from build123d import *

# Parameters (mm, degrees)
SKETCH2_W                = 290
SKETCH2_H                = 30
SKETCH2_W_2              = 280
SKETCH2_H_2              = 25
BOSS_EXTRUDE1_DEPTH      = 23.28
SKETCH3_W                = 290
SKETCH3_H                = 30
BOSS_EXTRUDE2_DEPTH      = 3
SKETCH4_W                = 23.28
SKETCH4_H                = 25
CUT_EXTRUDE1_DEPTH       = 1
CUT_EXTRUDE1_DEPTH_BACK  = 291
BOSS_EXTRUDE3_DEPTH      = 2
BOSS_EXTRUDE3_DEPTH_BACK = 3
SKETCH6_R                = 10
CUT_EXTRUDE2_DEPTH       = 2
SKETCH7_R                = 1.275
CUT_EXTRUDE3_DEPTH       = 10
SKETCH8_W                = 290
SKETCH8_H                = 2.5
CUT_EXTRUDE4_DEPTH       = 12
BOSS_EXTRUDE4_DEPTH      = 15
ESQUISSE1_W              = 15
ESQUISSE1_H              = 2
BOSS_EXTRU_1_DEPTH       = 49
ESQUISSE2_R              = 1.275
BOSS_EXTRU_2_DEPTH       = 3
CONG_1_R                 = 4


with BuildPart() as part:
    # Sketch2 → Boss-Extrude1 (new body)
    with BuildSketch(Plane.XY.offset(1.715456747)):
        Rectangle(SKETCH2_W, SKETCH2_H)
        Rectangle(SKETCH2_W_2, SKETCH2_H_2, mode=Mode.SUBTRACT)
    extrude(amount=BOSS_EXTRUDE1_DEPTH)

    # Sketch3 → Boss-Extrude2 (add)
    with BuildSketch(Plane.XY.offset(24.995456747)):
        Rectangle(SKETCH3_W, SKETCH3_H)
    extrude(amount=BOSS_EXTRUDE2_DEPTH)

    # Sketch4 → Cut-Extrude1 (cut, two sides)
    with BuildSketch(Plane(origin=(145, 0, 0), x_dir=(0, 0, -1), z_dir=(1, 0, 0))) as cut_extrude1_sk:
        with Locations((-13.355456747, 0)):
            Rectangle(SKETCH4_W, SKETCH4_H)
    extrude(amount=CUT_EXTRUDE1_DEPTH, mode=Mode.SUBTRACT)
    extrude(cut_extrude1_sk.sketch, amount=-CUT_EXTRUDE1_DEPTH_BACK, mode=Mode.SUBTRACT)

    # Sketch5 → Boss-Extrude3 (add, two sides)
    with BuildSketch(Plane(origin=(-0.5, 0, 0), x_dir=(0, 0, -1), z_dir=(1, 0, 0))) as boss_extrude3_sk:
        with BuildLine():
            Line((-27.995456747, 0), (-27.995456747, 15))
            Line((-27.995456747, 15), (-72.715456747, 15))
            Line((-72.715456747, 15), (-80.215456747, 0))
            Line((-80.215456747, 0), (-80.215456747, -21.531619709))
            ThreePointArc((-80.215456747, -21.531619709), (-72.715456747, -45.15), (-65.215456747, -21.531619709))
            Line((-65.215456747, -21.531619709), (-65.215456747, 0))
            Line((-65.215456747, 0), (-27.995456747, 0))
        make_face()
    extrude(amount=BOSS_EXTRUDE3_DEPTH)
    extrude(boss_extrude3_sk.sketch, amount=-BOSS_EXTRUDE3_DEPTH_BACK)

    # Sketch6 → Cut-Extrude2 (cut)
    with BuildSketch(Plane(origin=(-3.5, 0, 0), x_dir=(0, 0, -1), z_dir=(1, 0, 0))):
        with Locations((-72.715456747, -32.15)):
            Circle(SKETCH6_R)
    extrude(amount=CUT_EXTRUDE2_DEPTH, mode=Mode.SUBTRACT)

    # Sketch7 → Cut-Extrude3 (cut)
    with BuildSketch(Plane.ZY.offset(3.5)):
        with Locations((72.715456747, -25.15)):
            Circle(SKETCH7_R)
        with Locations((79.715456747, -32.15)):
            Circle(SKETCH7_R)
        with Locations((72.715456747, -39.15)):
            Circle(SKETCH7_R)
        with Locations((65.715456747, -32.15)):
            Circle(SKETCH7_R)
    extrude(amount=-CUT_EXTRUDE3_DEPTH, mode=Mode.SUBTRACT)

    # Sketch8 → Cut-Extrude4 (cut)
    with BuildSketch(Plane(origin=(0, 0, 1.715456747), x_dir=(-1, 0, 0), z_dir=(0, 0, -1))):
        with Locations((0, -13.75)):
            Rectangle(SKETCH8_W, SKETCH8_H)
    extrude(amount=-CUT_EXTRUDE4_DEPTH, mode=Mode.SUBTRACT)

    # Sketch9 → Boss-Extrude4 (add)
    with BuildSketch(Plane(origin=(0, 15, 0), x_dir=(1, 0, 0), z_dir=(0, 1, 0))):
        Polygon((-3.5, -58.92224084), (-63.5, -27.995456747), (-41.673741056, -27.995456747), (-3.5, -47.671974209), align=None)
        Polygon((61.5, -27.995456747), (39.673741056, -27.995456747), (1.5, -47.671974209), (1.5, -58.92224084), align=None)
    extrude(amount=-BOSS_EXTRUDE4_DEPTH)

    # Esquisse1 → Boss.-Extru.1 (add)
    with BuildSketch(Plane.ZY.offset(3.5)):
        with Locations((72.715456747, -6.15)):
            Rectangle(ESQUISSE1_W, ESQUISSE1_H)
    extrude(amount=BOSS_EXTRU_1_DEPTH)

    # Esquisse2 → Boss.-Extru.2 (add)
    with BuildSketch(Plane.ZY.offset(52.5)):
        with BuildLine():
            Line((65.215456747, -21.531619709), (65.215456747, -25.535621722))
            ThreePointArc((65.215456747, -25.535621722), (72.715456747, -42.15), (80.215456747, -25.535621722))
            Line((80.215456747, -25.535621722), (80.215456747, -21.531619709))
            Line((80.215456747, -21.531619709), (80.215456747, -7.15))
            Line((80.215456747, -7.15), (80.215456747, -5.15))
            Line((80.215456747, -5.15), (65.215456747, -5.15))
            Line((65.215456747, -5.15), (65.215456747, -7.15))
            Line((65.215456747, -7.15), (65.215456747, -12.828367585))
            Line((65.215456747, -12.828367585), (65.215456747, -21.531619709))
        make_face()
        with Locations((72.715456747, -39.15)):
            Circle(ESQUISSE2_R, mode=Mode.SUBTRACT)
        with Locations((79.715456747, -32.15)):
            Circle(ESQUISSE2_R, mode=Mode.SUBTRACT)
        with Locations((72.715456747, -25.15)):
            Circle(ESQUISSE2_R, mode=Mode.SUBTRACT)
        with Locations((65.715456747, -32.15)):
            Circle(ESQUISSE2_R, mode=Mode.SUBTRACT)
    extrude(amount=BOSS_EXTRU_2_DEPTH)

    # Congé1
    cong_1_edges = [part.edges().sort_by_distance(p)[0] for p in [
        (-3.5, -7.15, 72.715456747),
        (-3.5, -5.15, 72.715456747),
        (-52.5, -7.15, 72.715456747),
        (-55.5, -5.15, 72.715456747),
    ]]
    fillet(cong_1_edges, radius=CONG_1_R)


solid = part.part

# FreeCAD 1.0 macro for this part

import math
import FreeCAD as App
import Part
import Sketcher

V = App.Vector


def edges_at(feature, points):
    """Names of the edges that pass closest to the given points."""
    edges = feature.Shape.Edges
    near = lambda p: min(range(len(edges)), key=lambda i: edges[i].distToShape(Part.Vertex(*p))[0])
    return sorted({f"Edge{near(p) + 1}" for p in points})


def add_polygon(sketch, points):
    """Adds a closed chain of lines whose ends are joined by coincident constraints."""
    first, n = sketch.GeometryCount, len(points)
    for a, b in zip(points, points[1:] + points[:1]):
        sketch.addGeometry(Part.LineSegment(App.Vector(*a, 0), App.Vector(*b, 0)), False)
    for i in range(n):
        sketch.addConstraint(Sketcher.Constraint("Coincident", first + i, 2, first + (i + 1) % n, 1))

doc = App.newDocument("Part")
body = doc.addObject("PartDesign::Body", "Body")

sketch1 = body.newObject("Sketcher::SketchObject", "Sketch")
sketch1.AttachmentSupport = (doc.getObject("XY_Plane"), [""])
sketch1.MapMode = "FlatFace"
sketch1.AttachmentOffset = App.Placement(V(0, 0, 1.715457), App.Rotation())
add_polygon(sketch1, [(-145, 15), (-145, -15), (145, -15), (145, 15)])
add_polygon(sketch1, [(140, -12.5), (-140, -12.5), (-140, 12.5), (140, 12.5)])
sketch1.addConstraint(Sketcher.Constraint("Vertical", 0))
sketch1.addConstraint(Sketcher.Constraint("Horizontal", 1))
sketch1.addConstraint(Sketcher.Constraint("Vertical", 2))
sketch1.addConstraint(Sketcher.Constraint("Horizontal", 3))
sketch1.addConstraint(Sketcher.Constraint("Horizontal", 4))
sketch1.addConstraint(Sketcher.Constraint("Vertical", 5))
sketch1.addConstraint(Sketcher.Constraint("Horizontal", 6))
sketch1.addConstraint(Sketcher.Constraint("Vertical", 7))
sketch1.addConstraint(Sketcher.Constraint("Symmetric", 0, 2, 2, 2, -1, 1))
sketch1.addConstraint(Sketcher.Constraint("Symmetric", 4, 2, 6, 2, -1, 1))
sketch1.addConstraint(Sketcher.Constraint("DistanceX", 1, 1, 1, 2, 290.0))
sketch1.addConstraint(Sketcher.Constraint("DistanceX", 4, 2, 4, 1, 280.0))
sketch1.addConstraint(Sketcher.Constraint("DistanceY", 0, 2, 0, 1, 30.0))
sketch1.addConstraint(Sketcher.Constraint("DistanceY", 5, 1, 5, 2, 25.0))
pad1 = body.newObject("PartDesign::Pad", "Pad")
pad1.Profile = sketch1
pad1.Length = 23.28

sketch2 = body.newObject("Sketcher::SketchObject", "Sketch001")
sketch2.AttachmentSupport = (doc.getObject("XY_Plane"), [""])
sketch2.MapMode = "FlatFace"
sketch2.AttachmentOffset = App.Placement(V(0, 0, 24.995457), App.Rotation())
add_polygon(sketch2, [(-145, 15), (-145, -15), (145, -15), (145, 15)])
sketch2.addConstraint(Sketcher.Constraint("Vertical", 0))
sketch2.addConstraint(Sketcher.Constraint("Horizontal", 1))
sketch2.addConstraint(Sketcher.Constraint("Vertical", 2))
sketch2.addConstraint(Sketcher.Constraint("Horizontal", 3))
sketch2.addConstraint(Sketcher.Constraint("Symmetric", 0, 2, 2, 2, -1, 1))
sketch2.addConstraint(Sketcher.Constraint("DistanceX", 1, 1, 1, 2, 290.0))
sketch2.addConstraint(Sketcher.Constraint("DistanceY", 0, 2, 0, 1, 30.0))
pad2 = body.newObject("PartDesign::Pad", "Pad001")
pad2.Profile = sketch2
pad2.Length = 3

sketch3 = body.newObject("Sketcher::SketchObject", "Sketch002")
sketch3.AttachmentSupport = (doc.getObject("YZ_Plane"), [""])
sketch3.MapMode = "FlatFace"
sketch3.AttachmentOffset = App.Placement(V(0, 0, 145), App.Rotation())
add_polygon(sketch3, [(12.5, 24.995457), (-12.5, 24.995457), (-12.5, 1.715457), (12.5, 1.715457)])
sketch3.addConstraint(Sketcher.Constraint("Horizontal", 0))
sketch3.addConstraint(Sketcher.Constraint("Vertical", 1))
sketch3.addConstraint(Sketcher.Constraint("Horizontal", 2))
sketch3.addConstraint(Sketcher.Constraint("Vertical", 3))
sketch3.addConstraint(Sketcher.Constraint("DistanceX", 0, 2, 0, 1, 25.0))
sketch3.addConstraint(Sketcher.Constraint("DistanceY", 1, 2, 1, 1, 23.28))
sketch3.addConstraint(Sketcher.Constraint("DistanceX", 0, 2, -1, 1, 12.5))
sketch3.addConstraint(Sketcher.Constraint("DistanceY", -1, 1, 0, 2, 24.995457))
pocket1 = body.newObject("PartDesign::Pocket", "Pocket")
pocket1.Profile = sketch3
pocket1.Type = "ThroughAll"
pocket1.Midplane = True

sketch4 = body.newObject("Sketcher::SketchObject", "Sketch003")
sketch4.AttachmentSupport = (doc.getObject("YZ_Plane"), [""])
sketch4.MapMode = "FlatFace"
sketch4.AttachmentOffset = App.Placement(V(0, 0, -0.5), App.Rotation())
sketch4.addGeometry(Part.LineSegment(V(0, 27.995457, 0), V(15, 27.995457, 0)), False)
sketch4.addGeometry(Part.LineSegment(V(15, 27.995457, 0), V(15, 72.715457, 0)), False)
sketch4.addGeometry(Part.LineSegment(V(15, 72.715457, 0), V(0, 80.215457, 0)), False)
sketch4.addGeometry(Part.LineSegment(V(0, 80.215457, 0), V(-21.53162, 80.215457, 0)), False)
sketch4.addGeometry(Part.ArcOfCircle(Part.Circle(V(-32.15, 72.715457, 0), V(0, 0, 1), 13), math.radians(35.234418), math.radians(324.765582)), False)
sketch4.addGeometry(Part.LineSegment(V(-21.53162, 65.215457, 0), V(0, 65.215457, 0)), False)
sketch4.addGeometry(Part.LineSegment(V(0, 65.215457, 0), V(0, 27.995457, 0)), False)
sketch4.addConstraint(Sketcher.Constraint("Coincident", 0, 2, 1, 1))
sketch4.addConstraint(Sketcher.Constraint("Coincident", 1, 2, 2, 1))
sketch4.addConstraint(Sketcher.Constraint("Coincident", 2, 2, 3, 1))
sketch4.addConstraint(Sketcher.Constraint("Coincident", 3, 2, 4, 1))
sketch4.addConstraint(Sketcher.Constraint("Coincident", 4, 2, 5, 1))
sketch4.addConstraint(Sketcher.Constraint("Coincident", 5, 2, 6, 1))
sketch4.addConstraint(Sketcher.Constraint("Coincident", 6, 2, 0, 1))
sketch4.addConstraint(Sketcher.Constraint("Horizontal", 0))
sketch4.addConstraint(Sketcher.Constraint("Vertical", 1))
sketch4.addConstraint(Sketcher.Constraint("Horizontal", 3))
sketch4.addConstraint(Sketcher.Constraint("Horizontal", 5))
sketch4.addConstraint(Sketcher.Constraint("Vertical", 6))
sketch4.addConstraint(Sketcher.Constraint("PointOnObject", 2, 2, -2))
sketch4.addConstraint(Sketcher.Constraint("PointOnObject", 5, 2, -2))
sketch4.addConstraint(Sketcher.Constraint("Horizontal", 4, 3, 1, 2))
sketch4.addConstraint(Sketcher.Constraint("Vertical", 3, 2, 4, 2))
sketch4.addConstraint(Sketcher.Constraint("Radius", 4, 13.0))
sketch4.addConstraint(Sketcher.Constraint("DistanceX", 0, 1, 0, 2, 15.0))
sketch4.addConstraint(Sketcher.Constraint("DistanceY", 4, 2, 3, 2, 15.0))
sketch4.addConstraint(Sketcher.Constraint("DistanceY", 1, 1, 1, 2, 44.72))
sketch4.addConstraint(Sketcher.Constraint("DistanceX", 4, 3, -1, 1, 32.15))
sketch4.addConstraint(Sketcher.Constraint("DistanceY", -1, 1, 4, 3, 72.715457))
pad3 = body.newObject("PartDesign::Pad", "Pad002")
pad3.Profile = sketch4
pad3.Type = "TwoLengths"
pad3.Length = 2
pad3.Length2 = 3

sketch5 = body.newObject("Sketcher::SketchObject", "Sketch004")
sketch5.AttachmentSupport = (doc.getObject("YZ_Plane"), [""])
sketch5.MapMode = "FlatFace"
sketch5.AttachmentOffset = App.Placement(V(0, 0, -3.5), App.Rotation())
sketch5.addGeometry(Part.Circle(V(-32.15, 72.715457, 0), V(0, 0, 1), 10), False)
sketch5.addConstraint(Sketcher.Constraint("Diameter", 0, 20.0))
sketch5.addConstraint(Sketcher.Constraint("DistanceX", 0, 3, -1, 1, 32.15))
sketch5.addConstraint(Sketcher.Constraint("DistanceY", -1, 1, 0, 3, 72.715457))
pocket2 = body.newObject("PartDesign::Pocket", "Pocket001")
pocket2.Profile = sketch5
pocket2.Length = 2
pocket2.Reversed = True

sketch6 = body.newObject("Sketcher::SketchObject", "Sketch005")
sketch6.AttachmentSupport = (doc.getObject("YZ_Plane"), [""])
sketch6.MapMode = "FlatFace"
sketch6.AttachmentOffset = App.Placement(V(0, 0, -3.5), App.Rotation())
sketch6.addGeometry(Part.Circle(V(-25.15, 72.715457, 0), V(0, 0, 1), 1.275), False)
sketch6.addGeometry(Part.Circle(V(-32.15, 79.715457, 0), V(0, 0, 1), 1.275), False)
sketch6.addGeometry(Part.Circle(V(-39.15, 72.715457, 0), V(0, 0, 1), 1.275), False)
sketch6.addGeometry(Part.Circle(V(-32.15, 65.715457, 0), V(0, 0, 1), 1.275), False)
sketch6.addConstraint(Sketcher.Constraint("Equal", 0, 1))
sketch6.addConstraint(Sketcher.Constraint("Equal", 1, 2))
sketch6.addConstraint(Sketcher.Constraint("Equal", 2, 3))
sketch6.addConstraint(Sketcher.Constraint("Horizontal", 0, 3, 2, 3))
sketch6.addConstraint(Sketcher.Constraint("Vertical", 1, 3, 3, 3))
sketch6.addConstraint(Sketcher.Constraint("Diameter", 0, 2.55))
sketch6.addConstraint(Sketcher.Constraint("DistanceX", 1, 3, 0, 3, 7.0))
sketch6.addConstraint(Sketcher.Constraint("DistanceY", 0, 3, 1, 3, 7.0))
sketch6.addConstraint(Sketcher.Constraint("DistanceX", 2, 3, 1, 3, 7.0))
sketch6.addConstraint(Sketcher.Constraint("DistanceY", 3, 3, 0, 3, 7.0))
sketch6.addConstraint(Sketcher.Constraint("DistanceX", 0, 3, -1, 1, 25.15))
sketch6.addConstraint(Sketcher.Constraint("DistanceY", -1, 1, 0, 3, 72.715457))
pocket3 = body.newObject("PartDesign::Pocket", "Pocket002")
pocket3.Profile = sketch6
pocket3.Length = 10
pocket3.Reversed = True

sketch7 = body.newObject("Sketcher::SketchObject", "Sketch006")
sketch7.AttachmentSupport = (doc.getObject("XY_Plane"), [""])
sketch7.MapMode = "FlatFace"
sketch7.AttachmentOffset = App.Placement(V(0, 0, 1.715457), App.Rotation())
add_polygon(sketch7, [(145, -12.5), (145, -15), (-145, -15), (-145, -12.5)])
sketch7.addConstraint(Sketcher.Constraint("Vertical", 0))
sketch7.addConstraint(Sketcher.Constraint("Horizontal", 1))
sketch7.addConstraint(Sketcher.Constraint("Vertical", 2))
sketch7.addConstraint(Sketcher.Constraint("Horizontal", 3))
sketch7.addConstraint(Sketcher.Constraint("DistanceX", 1, 2, 1, 1, 290.0))
sketch7.addConstraint(Sketcher.Constraint("DistanceY", 0, 2, 0, 1, 2.5))
sketch7.addConstraint(Sketcher.Constraint("DistanceX", -1, 1, 0, 2, 145.0))
sketch7.addConstraint(Sketcher.Constraint("DistanceY", 0, 2, -1, 1, 15.0))
pocket4 = body.newObject("PartDesign::Pocket", "Pocket003")
pocket4.Profile = sketch7
pocket4.Length = 12
pocket4.Reversed = True

sketch8 = body.newObject("Sketcher::SketchObject", "Sketch007")
sketch8.AttachmentSupport = (doc.getObject("XZ_Plane"), [""])
sketch8.MapMode = "FlatFace"
sketch8.AttachmentOffset = App.Placement(V(0, 0, -15), App.Rotation())
add_polygon(sketch8, [(-63.5, 27.995457), (-3.5, 58.922241), (-3.5, 47.671974), (-41.673741, 27.995457)])
add_polygon(sketch8, [(61.5, 27.995457), (39.673741, 27.995457), (1.5, 47.671974), (1.5, 58.922241)])
sketch8.addConstraint(Sketcher.Constraint("Vertical", 1))
sketch8.addConstraint(Sketcher.Constraint("Horizontal", 3))
sketch8.addConstraint(Sketcher.Constraint("Horizontal", 4))
sketch8.addConstraint(Sketcher.Constraint("Vertical", 6))
sketch8.addConstraint(Sketcher.Constraint("Parallel", 0, 2))
sketch8.addConstraint(Sketcher.Constraint("Parallel", 5, 7))
sketch8.addConstraint(Sketcher.Constraint("Horizontal", 3, 2, 4, 2))
sketch8.addConstraint(Sketcher.Constraint("Horizontal", 1, 2, 5, 2))
sketch8.addConstraint(Sketcher.Constraint("Horizontal", 0, 2, 6, 2))
sketch8.addConstraint(Sketcher.Constraint("Equal", 3, 4))
sketch8.addConstraint(Sketcher.Constraint("DistanceX", 3, 2, 1, 2, 60.0))
sketch8.addConstraint(Sketcher.Constraint("DistanceX", 1, 2, 5, 2, 5.0))
sketch8.addConstraint(Sketcher.Constraint("DistanceX", 0, 2, -1, 1, 3.5))
sketch8.addConstraint(Sketcher.Constraint("Distance", 0, 67.5016))
sketch8.addConstraint(Sketcher.Constraint("DistanceX", 3, 2, 3, 1, 21.826259))
sketch8.addConstraint(Sketcher.Constraint("DistanceY", -1, 1, 0, 2, 58.922241))
pad4 = body.newObject("PartDesign::Pad", "Pad003")
pad4.Profile = sketch8
pad4.Length = 15

sketch9 = body.newObject("Sketcher::SketchObject", "Sketch008")
sketch9.AttachmentSupport = (doc.getObject("YZ_Plane"), [""])
sketch9.MapMode = "FlatFace"
sketch9.AttachmentOffset = App.Placement(V(0, 0, -3.5), App.Rotation())
add_polygon(sketch9, [(-5.15, 65.215457), (-7.15, 65.215457), (-7.15, 80.215457), (-5.15, 80.215457)])
sketch9.addConstraint(Sketcher.Constraint("Horizontal", 0))
sketch9.addConstraint(Sketcher.Constraint("Vertical", 1))
sketch9.addConstraint(Sketcher.Constraint("Horizontal", 2))
sketch9.addConstraint(Sketcher.Constraint("Vertical", 3))
sketch9.addConstraint(Sketcher.Constraint("DistanceX", 0, 2, 0, 1, 2.0))
sketch9.addConstraint(Sketcher.Constraint("DistanceY", 1, 1, 1, 2, 15.0))
sketch9.addConstraint(Sketcher.Constraint("DistanceX", 0, 2, -1, 1, 7.15))
sketch9.addConstraint(Sketcher.Constraint("DistanceY", -1, 1, 0, 2, 65.215457))
pad5 = body.newObject("PartDesign::Pad", "Pad004")
pad5.Profile = sketch9
pad5.Length = 49
pad5.Reversed = True

sketch10 = body.newObject("Sketcher::SketchObject", "Sketch009")
sketch10.AttachmentSupport = (doc.getObject("YZ_Plane"), [""])
sketch10.MapMode = "FlatFace"
sketch10.AttachmentOffset = App.Placement(V(0, 0, -52.5), App.Rotation())
sketch10.addGeometry(Part.ArcOfCircle(Part.Circle(V(-32.15, 72.715457, 0), V(0, 0, 1), 10), math.radians(48.590378), math.radians(311.409622)), False)
sketch10.addGeometry(Part.LineSegment(V(-25.535622, 80.215457, 0), V(-5.15, 80.215457, 0)), False)
sketch10.addGeometry(Part.LineSegment(V(-5.15, 80.215457, 0), V(-5.15, 65.215457, 0)), False)
sketch10.addGeometry(Part.LineSegment(V(-5.15, 65.215457, 0), V(-25.535622, 65.215457, 0)), False)
sketch10.addGeometry(Part.Circle(V(-39.15, 72.715457, 0), V(0, 0, 1), 1.275), False)
sketch10.addGeometry(Part.Circle(V(-32.15, 65.715457, 0), V(0, 0, 1), 1.275), False)
sketch10.addGeometry(Part.Circle(V(-32.15, 79.715457, 0), V(0, 0, 1), 1.275), False)
sketch10.addGeometry(Part.Circle(V(-25.15, 72.715457, 0), V(0, 0, 1), 1.275), False)
sketch10.addConstraint(Sketcher.Constraint("Coincident", 0, 1, 1, 1))
sketch10.addConstraint(Sketcher.Constraint("Coincident", 1, 2, 2, 1))
sketch10.addConstraint(Sketcher.Constraint("Coincident", 2, 2, 3, 1))
sketch10.addConstraint(Sketcher.Constraint("Coincident", 3, 2, 0, 2))
sketch10.addConstraint(Sketcher.Constraint("Horizontal", 1))
sketch10.addConstraint(Sketcher.Constraint("Vertical", 2))
sketch10.addConstraint(Sketcher.Constraint("Horizontal", 3))
sketch10.addConstraint(Sketcher.Constraint("Equal", 4, 5))
sketch10.addConstraint(Sketcher.Constraint("Equal", 5, 6))
sketch10.addConstraint(Sketcher.Constraint("Equal", 6, 7))
sketch10.addConstraint(Sketcher.Constraint("Horizontal", 0, 3, 4, 3))
sketch10.addConstraint(Sketcher.Constraint("Horizontal", 4, 3, 7, 3))
sketch10.addConstraint(Sketcher.Constraint("Vertical", 0, 3, 5, 3))
sketch10.addConstraint(Sketcher.Constraint("Vertical", 5, 3, 6, 3))
sketch10.addConstraint(Sketcher.Constraint("Vertical", 0, 1, 3, 2))
sketch10.addConstraint(Sketcher.Constraint("Radius", 0, 10.0))
sketch10.addConstraint(Sketcher.Constraint("Diameter", 4, 2.55))
sketch10.addConstraint(Sketcher.Constraint("DistanceY", 2, 2, 2, 1, 15.0))
sketch10.addConstraint(Sketcher.Constraint("DistanceX", 4, 3, 0, 3, 7.0))
sketch10.addConstraint(Sketcher.Constraint("DistanceY", 5, 3, 0, 3, 7.0))
sketch10.addConstraint(Sketcher.Constraint("DistanceY", 0, 3, 6, 3, 7.0))
sketch10.addConstraint(Sketcher.Constraint("DistanceX", 0, 3, 7, 3, 7.0))
sketch10.addConstraint(Sketcher.Constraint("DistanceX", 7, 3, 1, 2, 20.0))
sketch10.addConstraint(Sketcher.Constraint("DistanceX", 0, 3, -1, 1, 32.15))
sketch10.addConstraint(Sketcher.Constraint("DistanceY", -1, 1, 0, 3, 72.715457))
pad6 = body.newObject("PartDesign::Pad", "Pad005")
pad6.Profile = sketch10
pad6.Length = 3
pad6.Reversed = True
doc.recompute()

fillet = body.newObject("PartDesign::Fillet", "Fillet")
fillet.Base = (pad6, edges_at(pad6, [
    (-3.5, -7.15, 72.715),
    (-3.5, -5.15, 72.715),
    (-52.5, -7.15, 72.715),
    (-55.5, -5.15, 72.715),
]))
fillet.Radius = 4

doc.recompute()
